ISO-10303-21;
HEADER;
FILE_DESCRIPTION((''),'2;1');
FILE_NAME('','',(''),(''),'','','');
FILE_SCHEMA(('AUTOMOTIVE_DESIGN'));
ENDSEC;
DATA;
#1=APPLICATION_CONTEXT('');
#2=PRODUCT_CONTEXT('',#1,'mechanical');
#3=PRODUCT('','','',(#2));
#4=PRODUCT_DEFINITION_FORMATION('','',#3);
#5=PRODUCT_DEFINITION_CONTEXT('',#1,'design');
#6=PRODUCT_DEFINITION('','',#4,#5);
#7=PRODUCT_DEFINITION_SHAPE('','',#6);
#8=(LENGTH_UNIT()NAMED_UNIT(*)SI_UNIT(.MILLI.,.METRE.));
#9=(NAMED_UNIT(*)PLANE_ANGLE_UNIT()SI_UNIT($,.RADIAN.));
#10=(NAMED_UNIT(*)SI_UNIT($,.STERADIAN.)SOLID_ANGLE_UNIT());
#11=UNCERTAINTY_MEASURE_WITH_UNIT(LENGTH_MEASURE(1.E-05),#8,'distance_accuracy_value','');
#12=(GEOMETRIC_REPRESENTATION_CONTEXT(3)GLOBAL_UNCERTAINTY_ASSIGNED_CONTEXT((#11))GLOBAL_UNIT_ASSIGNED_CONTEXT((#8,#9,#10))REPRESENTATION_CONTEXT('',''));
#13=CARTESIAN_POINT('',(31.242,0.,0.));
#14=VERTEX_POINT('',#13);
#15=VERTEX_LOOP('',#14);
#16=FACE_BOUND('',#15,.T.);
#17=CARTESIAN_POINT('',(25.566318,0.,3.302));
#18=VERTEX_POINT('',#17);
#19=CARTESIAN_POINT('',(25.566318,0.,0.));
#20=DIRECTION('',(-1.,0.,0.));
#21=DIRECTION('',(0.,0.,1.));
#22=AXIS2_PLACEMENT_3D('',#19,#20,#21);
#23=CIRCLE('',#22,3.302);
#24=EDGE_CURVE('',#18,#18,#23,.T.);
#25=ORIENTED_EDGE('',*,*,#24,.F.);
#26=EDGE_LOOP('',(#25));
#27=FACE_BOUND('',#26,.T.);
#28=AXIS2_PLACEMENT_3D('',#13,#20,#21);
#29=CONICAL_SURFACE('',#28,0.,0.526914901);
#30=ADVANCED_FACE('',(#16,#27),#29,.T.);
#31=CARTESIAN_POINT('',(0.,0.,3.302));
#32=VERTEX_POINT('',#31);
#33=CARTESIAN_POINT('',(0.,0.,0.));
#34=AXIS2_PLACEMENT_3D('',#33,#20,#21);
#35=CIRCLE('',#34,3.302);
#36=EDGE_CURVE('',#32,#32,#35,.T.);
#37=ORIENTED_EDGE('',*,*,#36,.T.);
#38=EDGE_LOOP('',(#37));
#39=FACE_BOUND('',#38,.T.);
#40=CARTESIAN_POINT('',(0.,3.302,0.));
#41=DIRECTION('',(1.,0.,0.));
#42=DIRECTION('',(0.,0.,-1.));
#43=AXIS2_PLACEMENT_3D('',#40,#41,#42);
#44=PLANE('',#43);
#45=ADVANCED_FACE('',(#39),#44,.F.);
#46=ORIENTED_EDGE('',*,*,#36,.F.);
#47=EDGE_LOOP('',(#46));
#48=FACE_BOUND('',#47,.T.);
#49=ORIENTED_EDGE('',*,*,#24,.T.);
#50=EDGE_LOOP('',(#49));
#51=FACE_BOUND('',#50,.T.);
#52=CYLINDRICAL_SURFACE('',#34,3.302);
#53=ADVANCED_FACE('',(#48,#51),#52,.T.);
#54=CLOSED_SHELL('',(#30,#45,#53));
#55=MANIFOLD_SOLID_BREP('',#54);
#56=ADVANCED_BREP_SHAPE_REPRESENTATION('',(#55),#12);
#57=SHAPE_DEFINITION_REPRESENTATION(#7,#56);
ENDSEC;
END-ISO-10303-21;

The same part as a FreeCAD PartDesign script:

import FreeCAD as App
import Part
import Sketcher

V = App.Vector
Q = App.Units.Quantity

doc = App.newDocument("Part")
body = doc.addObject("PartDesign::Body", "Body")

sketch1 = body.newObject("Sketcher::SketchObject", "Sketch")
sketch1.AttachmentSupport = (doc.getObject("XY_Plane"), [""])
sketch1.MapMode = "FlatFace"
sketch1.addGeometry([
    Part.LineSegment(V(31.2, 0, 0), V(25.6, 3.3, 0)),
    Part.LineSegment(V(25.6, 3.3, 0), V(0, 3.3, 0)),
    Part.LineSegment(V(0, 3.3, 0), V(0, 0, 0)),
    Part.LineSegment(V(0, 0, 0), V(31.2, 0, 0)),
], False)
sketch1.addConstraint([
    Sketcher.Constraint("Coincident", 0, 2, 1, 1),
    Sketcher.Constraint("Coincident", 1, 2, 2, 1),
    Sketcher.Constraint("Coincident", 2, 2, 3, 1),
    Sketcher.Constraint("Coincident", 3, 2, 0, 1),
    Sketcher.Constraint("Horizontal", 1),
    Sketcher.Constraint("Vertical", 2),
    Sketcher.Constraint("Horizontal", 3),
    Sketcher.Constraint("Coincident", 2, 2, -1, 1),
    Sketcher.Constraint("DistanceX", 3, 1, 3, 2, Q("1.23 in")),
    Sketcher.Constraint("DistanceY", 2, 2, 2, 1, Q("0.13 in")),
    Sketcher.Constraint("Angle", 0, Q("149.81 deg")),
])
revolution = body.newObject("PartDesign::Revolution", "Revolution")
revolution.Profile = sketch1
revolution.ReferenceAxis = (sketch1, ["H_Axis"])
revolution.Angle = 360

doc.recompute()
